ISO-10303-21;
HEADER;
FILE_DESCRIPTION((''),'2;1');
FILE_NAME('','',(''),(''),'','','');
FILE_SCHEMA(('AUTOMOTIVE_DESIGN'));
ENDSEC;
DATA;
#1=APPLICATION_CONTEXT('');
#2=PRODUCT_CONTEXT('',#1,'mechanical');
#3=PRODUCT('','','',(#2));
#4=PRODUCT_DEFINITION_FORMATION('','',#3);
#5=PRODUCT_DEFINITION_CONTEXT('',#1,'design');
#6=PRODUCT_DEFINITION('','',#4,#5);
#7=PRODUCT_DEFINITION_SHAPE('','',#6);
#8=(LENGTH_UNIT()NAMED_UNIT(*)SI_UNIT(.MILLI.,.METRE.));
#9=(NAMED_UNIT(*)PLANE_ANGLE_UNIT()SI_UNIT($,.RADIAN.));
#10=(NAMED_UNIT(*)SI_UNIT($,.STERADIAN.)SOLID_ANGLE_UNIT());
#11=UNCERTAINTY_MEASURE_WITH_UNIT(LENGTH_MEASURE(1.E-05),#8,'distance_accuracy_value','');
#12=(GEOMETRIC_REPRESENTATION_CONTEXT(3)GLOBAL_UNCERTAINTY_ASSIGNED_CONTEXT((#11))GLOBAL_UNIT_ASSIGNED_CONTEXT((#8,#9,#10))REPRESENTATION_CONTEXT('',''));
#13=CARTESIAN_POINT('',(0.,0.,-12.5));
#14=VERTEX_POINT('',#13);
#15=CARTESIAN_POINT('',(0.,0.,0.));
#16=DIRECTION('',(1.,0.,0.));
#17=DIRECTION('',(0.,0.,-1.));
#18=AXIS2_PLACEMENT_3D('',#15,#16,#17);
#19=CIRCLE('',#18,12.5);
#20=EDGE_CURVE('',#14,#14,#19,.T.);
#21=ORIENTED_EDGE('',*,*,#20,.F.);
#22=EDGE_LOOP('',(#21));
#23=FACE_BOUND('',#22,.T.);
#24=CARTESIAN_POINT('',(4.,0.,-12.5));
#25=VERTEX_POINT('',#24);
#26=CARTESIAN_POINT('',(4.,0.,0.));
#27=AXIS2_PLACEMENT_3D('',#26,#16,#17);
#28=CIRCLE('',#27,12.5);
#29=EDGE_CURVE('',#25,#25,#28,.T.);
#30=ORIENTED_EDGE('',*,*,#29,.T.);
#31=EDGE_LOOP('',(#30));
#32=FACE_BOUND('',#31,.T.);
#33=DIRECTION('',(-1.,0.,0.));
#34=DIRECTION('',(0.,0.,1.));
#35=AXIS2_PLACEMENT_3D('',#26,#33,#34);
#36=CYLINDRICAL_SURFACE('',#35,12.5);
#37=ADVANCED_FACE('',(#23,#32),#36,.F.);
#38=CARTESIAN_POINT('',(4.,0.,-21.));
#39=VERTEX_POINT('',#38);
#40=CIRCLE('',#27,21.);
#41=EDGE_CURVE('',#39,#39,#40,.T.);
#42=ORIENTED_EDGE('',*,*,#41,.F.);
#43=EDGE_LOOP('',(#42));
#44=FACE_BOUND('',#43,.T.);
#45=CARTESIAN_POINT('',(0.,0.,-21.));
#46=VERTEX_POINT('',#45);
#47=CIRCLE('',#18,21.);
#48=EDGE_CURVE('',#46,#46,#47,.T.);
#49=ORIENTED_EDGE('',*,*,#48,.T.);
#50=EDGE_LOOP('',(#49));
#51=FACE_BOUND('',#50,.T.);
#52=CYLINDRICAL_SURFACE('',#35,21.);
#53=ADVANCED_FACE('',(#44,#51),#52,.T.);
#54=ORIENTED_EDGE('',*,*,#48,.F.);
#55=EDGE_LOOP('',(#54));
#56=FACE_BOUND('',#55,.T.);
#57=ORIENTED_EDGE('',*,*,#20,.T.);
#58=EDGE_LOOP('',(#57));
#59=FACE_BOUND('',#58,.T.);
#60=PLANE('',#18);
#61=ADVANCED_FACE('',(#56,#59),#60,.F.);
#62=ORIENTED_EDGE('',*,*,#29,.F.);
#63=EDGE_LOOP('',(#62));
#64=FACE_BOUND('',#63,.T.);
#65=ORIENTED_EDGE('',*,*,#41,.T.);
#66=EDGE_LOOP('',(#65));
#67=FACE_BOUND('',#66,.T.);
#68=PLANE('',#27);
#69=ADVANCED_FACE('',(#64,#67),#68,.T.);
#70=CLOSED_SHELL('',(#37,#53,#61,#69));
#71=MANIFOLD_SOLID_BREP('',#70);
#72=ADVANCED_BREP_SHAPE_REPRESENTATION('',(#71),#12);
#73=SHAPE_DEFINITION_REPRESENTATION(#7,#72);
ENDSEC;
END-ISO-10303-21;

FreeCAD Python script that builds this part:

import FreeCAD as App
import Part
import Sketcher

V = App.Vector

doc = App.newDocument("Part")
params = doc.addObject("Spreadsheet::Sheet", "Params")
for row, (alias, value) in enumerate([
    ("sketch1_diameter", "42 mm"),
    ("sketch1_diameter2", "25 mm"),
    ("pad1_length", "4 mm"),
], start=1):
    params.set(f"A{row}", alias)
    params.set(f"B{row}", "=" + value)
    params.setAlias(f"B{row}", alias)

body = doc.addObject("PartDesign::Body", "Body")

sketch1 = body.newObject("Sketcher::SketchObject", "Sketch")
sketch1.AttachmentSupport = (doc.getObject("YZ_Plane"), [""])
sketch1.MapMode = "FlatFace"
sketch1.addGeometry(Part.Circle(V(0, 0, 0), V(0, 0, 1), 21), False)
sketch1.addGeometry(Part.Circle(V(0, 0, 0), V(0, 0, 1), 12), False)
sketch1.addConstraint(Sketcher.Constraint("Coincident", 0, 3, -1, 1))
sketch1.addConstraint(Sketcher.Constraint("Coincident", 1, 3, -1, 1))
sketch1.addConstraint(Sketcher.Constraint("Diameter", 0, 42.0))
sketch1.addConstraint(Sketcher.Constraint("Diameter", 1, 25.0))
sketch1.setExpression("Constraints[2]", "Params.sketch1_diameter")
sketch1.setExpression("Constraints[3]", "Params.sketch1_diameter2")
pad1 = body.newObject("PartDesign::Pad", "Pad")
pad1.Profile = sketch1
pad1.setExpression("Length", "Params.pad1_length")

doc.recompute()
